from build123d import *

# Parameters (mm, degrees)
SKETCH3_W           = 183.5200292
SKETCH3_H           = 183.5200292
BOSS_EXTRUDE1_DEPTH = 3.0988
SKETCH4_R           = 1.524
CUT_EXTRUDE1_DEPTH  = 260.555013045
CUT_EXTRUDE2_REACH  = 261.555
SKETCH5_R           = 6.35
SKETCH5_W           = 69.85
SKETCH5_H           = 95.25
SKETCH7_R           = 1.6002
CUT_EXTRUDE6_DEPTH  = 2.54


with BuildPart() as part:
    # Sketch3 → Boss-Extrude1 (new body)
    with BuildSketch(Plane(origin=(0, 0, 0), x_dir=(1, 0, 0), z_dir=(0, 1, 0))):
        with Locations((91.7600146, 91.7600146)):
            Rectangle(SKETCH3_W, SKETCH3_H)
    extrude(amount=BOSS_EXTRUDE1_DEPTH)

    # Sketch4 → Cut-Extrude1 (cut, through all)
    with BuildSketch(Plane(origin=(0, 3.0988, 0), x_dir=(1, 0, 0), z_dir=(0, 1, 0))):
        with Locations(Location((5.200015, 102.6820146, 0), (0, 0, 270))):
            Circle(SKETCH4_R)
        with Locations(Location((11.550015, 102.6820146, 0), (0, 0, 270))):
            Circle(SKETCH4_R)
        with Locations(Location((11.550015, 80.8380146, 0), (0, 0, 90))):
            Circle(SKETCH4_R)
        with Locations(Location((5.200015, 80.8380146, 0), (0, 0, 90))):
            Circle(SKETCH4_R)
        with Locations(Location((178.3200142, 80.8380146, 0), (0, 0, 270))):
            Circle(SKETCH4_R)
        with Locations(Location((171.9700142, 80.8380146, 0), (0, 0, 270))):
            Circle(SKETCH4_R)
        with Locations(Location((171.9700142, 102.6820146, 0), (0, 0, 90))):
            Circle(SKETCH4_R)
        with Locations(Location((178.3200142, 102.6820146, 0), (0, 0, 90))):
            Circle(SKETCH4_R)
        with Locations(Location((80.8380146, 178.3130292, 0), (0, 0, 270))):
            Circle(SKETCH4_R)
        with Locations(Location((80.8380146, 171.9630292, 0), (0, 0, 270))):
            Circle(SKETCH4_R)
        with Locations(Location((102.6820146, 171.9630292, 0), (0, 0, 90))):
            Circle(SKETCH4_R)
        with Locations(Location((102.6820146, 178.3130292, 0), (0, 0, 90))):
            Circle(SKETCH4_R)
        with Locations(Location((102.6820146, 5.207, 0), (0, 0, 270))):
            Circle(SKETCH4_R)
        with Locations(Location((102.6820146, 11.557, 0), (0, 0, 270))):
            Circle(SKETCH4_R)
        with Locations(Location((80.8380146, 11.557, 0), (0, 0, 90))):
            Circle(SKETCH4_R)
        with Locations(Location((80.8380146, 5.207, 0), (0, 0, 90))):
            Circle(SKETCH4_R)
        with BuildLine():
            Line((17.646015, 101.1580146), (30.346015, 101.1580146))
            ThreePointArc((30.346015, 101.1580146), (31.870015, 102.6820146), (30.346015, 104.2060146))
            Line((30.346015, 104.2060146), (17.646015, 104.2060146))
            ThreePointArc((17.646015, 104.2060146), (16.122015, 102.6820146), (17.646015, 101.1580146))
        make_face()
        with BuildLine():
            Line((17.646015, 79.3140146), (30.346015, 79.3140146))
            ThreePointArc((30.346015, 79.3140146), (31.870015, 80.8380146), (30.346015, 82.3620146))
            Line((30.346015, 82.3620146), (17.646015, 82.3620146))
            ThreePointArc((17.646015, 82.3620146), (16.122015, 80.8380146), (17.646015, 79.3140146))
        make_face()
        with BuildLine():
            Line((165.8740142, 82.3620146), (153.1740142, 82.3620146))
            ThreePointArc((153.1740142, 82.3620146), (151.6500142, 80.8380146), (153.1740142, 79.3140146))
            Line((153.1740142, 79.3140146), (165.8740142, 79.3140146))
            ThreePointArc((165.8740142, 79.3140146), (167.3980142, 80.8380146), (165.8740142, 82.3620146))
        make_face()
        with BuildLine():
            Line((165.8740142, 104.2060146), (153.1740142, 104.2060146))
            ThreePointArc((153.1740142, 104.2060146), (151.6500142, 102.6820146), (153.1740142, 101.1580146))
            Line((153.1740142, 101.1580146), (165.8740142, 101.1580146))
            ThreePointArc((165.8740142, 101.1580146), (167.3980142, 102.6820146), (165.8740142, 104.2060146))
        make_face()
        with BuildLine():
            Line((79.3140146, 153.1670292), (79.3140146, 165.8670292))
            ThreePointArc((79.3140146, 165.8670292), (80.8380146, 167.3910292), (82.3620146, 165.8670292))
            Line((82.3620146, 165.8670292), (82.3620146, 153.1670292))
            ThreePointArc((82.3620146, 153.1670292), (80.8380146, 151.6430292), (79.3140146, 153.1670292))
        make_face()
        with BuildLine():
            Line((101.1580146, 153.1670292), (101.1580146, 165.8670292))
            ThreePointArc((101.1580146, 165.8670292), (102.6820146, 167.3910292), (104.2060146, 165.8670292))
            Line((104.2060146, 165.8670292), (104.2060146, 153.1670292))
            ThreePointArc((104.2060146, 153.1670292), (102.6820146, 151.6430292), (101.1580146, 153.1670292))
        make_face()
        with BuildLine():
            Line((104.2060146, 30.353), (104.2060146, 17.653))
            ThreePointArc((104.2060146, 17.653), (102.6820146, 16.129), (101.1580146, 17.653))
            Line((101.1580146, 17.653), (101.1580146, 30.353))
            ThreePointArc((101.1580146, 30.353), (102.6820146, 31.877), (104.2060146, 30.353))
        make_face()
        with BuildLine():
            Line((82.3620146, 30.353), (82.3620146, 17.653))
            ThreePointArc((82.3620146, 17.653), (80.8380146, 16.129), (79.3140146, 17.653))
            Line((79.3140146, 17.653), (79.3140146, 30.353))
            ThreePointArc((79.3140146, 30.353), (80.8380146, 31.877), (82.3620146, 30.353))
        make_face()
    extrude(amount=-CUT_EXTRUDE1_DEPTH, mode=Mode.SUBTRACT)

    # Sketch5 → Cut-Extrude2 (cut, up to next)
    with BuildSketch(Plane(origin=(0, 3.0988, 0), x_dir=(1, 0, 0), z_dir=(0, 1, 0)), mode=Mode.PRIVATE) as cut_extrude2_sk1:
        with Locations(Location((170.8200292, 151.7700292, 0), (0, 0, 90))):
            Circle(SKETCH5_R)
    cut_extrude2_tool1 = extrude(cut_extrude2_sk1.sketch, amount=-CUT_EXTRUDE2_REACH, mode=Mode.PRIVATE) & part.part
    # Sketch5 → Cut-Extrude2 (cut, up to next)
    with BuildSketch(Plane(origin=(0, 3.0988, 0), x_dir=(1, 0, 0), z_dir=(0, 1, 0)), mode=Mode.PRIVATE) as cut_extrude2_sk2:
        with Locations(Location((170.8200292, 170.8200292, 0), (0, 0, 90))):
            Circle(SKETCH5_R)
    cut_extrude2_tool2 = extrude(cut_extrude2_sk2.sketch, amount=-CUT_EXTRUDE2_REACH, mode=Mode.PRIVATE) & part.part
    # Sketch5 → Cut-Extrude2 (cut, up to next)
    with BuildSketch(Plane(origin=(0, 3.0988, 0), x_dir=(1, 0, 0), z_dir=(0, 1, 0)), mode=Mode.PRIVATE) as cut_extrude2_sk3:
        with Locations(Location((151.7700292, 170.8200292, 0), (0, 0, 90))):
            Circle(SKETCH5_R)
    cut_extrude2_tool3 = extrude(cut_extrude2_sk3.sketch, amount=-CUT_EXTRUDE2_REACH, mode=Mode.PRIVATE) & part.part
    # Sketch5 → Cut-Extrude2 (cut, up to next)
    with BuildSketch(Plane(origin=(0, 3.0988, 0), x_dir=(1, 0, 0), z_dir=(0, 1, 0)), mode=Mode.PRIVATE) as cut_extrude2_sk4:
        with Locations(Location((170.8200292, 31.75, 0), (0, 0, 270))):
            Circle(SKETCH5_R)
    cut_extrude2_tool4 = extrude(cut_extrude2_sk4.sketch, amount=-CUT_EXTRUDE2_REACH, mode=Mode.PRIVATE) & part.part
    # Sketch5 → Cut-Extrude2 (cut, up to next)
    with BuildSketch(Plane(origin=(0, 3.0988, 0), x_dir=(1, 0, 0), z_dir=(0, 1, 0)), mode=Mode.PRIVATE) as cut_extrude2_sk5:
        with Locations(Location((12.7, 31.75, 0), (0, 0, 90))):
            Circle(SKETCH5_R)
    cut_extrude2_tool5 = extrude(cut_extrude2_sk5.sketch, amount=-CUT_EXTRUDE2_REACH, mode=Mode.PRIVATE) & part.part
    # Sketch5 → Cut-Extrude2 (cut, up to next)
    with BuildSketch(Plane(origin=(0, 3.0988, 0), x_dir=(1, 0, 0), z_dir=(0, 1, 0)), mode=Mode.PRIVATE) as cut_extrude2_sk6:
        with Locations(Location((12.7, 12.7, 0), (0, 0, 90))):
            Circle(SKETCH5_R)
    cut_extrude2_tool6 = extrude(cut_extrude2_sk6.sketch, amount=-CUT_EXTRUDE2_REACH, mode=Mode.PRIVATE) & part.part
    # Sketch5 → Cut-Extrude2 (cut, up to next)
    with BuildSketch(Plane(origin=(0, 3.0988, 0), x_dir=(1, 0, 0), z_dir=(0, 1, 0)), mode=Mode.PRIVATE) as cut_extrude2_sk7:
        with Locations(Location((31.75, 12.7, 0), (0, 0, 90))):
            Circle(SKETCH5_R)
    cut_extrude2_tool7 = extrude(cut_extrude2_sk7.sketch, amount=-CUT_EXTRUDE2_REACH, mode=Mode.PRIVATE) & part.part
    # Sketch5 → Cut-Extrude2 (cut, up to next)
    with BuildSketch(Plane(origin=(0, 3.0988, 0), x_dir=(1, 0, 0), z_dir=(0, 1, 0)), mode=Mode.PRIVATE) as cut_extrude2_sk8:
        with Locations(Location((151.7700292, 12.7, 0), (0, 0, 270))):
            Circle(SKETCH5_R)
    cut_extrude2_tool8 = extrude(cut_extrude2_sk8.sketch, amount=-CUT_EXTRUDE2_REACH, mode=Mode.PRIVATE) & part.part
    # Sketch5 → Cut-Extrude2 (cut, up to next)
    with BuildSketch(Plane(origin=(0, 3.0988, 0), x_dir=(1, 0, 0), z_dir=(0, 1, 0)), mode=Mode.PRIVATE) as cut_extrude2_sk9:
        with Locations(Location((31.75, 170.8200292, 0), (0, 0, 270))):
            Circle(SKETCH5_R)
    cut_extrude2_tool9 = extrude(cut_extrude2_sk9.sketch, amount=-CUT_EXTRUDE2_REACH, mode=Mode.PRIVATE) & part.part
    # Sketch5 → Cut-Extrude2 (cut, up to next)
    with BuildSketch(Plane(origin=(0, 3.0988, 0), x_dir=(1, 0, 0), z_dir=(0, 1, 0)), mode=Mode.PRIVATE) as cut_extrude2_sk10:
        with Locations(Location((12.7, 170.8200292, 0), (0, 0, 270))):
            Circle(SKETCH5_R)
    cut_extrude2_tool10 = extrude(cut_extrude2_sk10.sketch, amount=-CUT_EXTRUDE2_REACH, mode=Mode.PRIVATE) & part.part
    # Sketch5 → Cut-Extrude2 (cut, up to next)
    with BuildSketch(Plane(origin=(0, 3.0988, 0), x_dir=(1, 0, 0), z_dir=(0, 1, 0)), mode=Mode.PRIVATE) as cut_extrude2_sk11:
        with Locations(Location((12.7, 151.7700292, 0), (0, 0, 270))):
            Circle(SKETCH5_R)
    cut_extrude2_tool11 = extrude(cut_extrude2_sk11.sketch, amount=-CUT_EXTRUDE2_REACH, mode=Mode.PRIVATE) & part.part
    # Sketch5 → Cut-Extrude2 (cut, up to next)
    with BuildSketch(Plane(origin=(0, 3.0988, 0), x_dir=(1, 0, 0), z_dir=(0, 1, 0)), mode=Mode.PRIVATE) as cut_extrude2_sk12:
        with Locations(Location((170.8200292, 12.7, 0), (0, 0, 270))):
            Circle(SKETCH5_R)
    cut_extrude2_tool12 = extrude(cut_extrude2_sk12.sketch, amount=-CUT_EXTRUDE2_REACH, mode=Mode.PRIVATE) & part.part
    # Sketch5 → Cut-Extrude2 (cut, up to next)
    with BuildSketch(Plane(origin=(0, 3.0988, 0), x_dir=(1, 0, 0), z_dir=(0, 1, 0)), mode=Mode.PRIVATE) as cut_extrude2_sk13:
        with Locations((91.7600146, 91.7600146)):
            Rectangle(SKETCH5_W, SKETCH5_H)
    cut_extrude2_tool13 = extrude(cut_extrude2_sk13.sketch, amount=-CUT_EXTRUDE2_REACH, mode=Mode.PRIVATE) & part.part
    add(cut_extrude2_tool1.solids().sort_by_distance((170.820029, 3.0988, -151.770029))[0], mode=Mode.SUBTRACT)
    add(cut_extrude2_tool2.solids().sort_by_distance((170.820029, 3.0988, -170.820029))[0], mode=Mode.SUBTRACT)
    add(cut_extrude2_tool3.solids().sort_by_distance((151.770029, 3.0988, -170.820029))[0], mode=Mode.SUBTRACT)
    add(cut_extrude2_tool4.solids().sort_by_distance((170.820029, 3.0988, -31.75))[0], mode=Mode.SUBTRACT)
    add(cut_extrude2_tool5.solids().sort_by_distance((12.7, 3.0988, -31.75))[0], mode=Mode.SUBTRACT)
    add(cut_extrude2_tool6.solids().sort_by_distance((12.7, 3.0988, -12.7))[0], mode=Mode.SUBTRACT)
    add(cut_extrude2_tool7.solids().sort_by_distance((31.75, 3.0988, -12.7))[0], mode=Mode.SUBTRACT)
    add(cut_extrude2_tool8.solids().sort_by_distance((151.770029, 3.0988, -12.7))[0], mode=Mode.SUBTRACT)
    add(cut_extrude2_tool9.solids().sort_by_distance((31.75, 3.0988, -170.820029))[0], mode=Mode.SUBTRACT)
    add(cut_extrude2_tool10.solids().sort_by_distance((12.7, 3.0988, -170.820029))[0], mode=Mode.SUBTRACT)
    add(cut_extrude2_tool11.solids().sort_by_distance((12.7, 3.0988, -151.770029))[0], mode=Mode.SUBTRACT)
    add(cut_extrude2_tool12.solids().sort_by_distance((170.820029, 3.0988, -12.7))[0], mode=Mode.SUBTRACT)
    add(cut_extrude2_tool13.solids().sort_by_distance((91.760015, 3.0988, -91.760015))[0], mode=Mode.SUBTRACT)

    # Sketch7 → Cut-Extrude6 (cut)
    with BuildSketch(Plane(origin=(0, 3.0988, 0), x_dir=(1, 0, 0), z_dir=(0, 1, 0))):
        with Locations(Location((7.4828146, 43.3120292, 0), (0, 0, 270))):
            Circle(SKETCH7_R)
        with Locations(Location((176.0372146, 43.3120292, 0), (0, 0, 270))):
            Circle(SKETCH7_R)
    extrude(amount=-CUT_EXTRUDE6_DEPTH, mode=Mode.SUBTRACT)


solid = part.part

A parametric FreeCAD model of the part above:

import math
import FreeCAD as App
import Part
import Sketcher
from FreeCAD import Vector
Q = App.Units.Quantity

doc = App.newDocument("Part")
params = doc.addObject("Spreadsheet::Sheet", "Params")
for row, (alias, value) in enumerate([
    ("pad1_length", "0.122 in"),
    ("sketch2_diameter", "0.12 in"),
    ("sketch2_width", "0.5 in"),
    ("sketch3_diameter", "0.5 in"),
    ("sketch4_diameter", "0.5 in"),
    ("sketch5_diameter", "0.5 in"),
    ("sketch6_diameter", "0.5 in"),
    ("sketch7_diameter", "0.5 in"),
    ("sketch8_diameter", "0.5 in"),
    ("sketch9_diameter", "0.5 in"),
    ("sketch10_diameter", "0.5 in"),
    ("sketch11_diameter", "0.5 in"),
    ("sketch12_diameter", "0.5 in"),
    ("sketch13_diameter", "0.5 in"),
    ("sketch14_diameter", "0.5 in"),
    ("sketch15_width", "2.75 in"),
    ("sketch15_height", "3.75 in"),
    ("sketch16_diameter", "0.126 in"),
    ("pocket15_length", "0.1 in"),
], start=1):
    params.set(f"A{row}", alias)
    params.set(f"B{row}", "=" + value)
    params.setAlias(f"B{row}", alias)

body = doc.addObject("PartDesign::Body", "Body")

sketch1 = doc.addObject("Sketcher::SketchObject", "Sketch")
body.addObject(sketch1)
sketch1.AttachmentSupport = (doc.XZ_Plane, [""])
sketch1.MapMode = "FlatFace"
sketch1.addGeometry([
    Part.LineSegment(Vector(0, -184, 0), Vector(0, 0, 0)),
    Part.LineSegment(Vector(0, 0, 0), Vector(184, 0, 0)),
    Part.LineSegment(Vector(184, 0, 0), Vector(184, -184, 0)),
    Part.LineSegment(Vector(184, -184, 0), Vector(0, -184, 0)),
], False)
sketch1.addConstraint([
    Sketcher.Constraint("Coincident", 0, 2, 1, 1),
    Sketcher.Constraint("Coincident", 1, 2, 2, 1),
    Sketcher.Constraint("Coincident", 2, 2, 3, 1),
    Sketcher.Constraint("Coincident", 3, 2, 0, 1),
    Sketcher.Constraint("Vertical", 0),
    Sketcher.Constraint("Horizontal", 1),
    Sketcher.Constraint("Vertical", 2),
    Sketcher.Constraint("Horizontal", 3),
    Sketcher.Constraint("Coincident", 0, 2, -1, 1),
    Sketcher.Constraint("Equal", 3, 0),
    Sketcher.Constraint("DistanceX", 1, 1, 1, 2, Q("183.520029 mm")),
])
pad1 = doc.addObject("PartDesign::Pad", "Pad")
body.addObject(pad1)
pad1.Profile = sketch1
pad1.setExpression("Length", "Params.pad1_length")
pad1.Reversed = True

sketch2 = doc.addObject("Sketcher::SketchObject", "Sketch001")
body.addObject(sketch2)
sketch2.AttachmentSupport = (doc.XZ_Plane, [""])
sketch2.MapMode = "FlatFace"
sketch2.AttachmentOffset = App.Placement(Vector(0, 0, -0.122 * 25.4), App.Rotation())
sketch2.addGeometry([
    Part.Circle(Vector(5.2, -102.7, 0), Vector(0, 0, 1), 1.5),
    Part.Circle(Vector(11.6, -102.7, 0), Vector(0, 0, 1), 1.5),
    Part.Circle(Vector(11.6, -80.8, 0), Vector(0, 0, 1), 1.5),
    Part.Circle(Vector(5.2, -80.8, 0), Vector(0, 0, 1), 1.5),
    Part.Circle(Vector(178.3, -80.8, 0), Vector(0, 0, 1), 1.5),
    Part.Circle(Vector(172, -80.8, 0), Vector(0, 0, 1), 1.5),
    Part.Circle(Vector(172, -102.7, 0), Vector(0, 0, 1), 1.5),
    Part.Circle(Vector(178.3, -102.7, 0), Vector(0, 0, 1), 1.5),
    Part.Circle(Vector(80.8, -178.3, 0), Vector(0, 0, 1), 1.5),
    Part.Circle(Vector(80.8, -172, 0), Vector(0, 0, 1), 1.5),
    Part.Circle(Vector(102.7, -172, 0), Vector(0, 0, 1), 1.5),
    Part.Circle(Vector(102.7, -178.3, 0), Vector(0, 0, 1), 1.5),
    Part.Circle(Vector(102.7, -5.2, 0), Vector(0, 0, 1), 1.5),
    Part.Circle(Vector(102.7, -11.6, 0), Vector(0, 0, 1), 1.5),
    Part.Circle(Vector(80.8, -11.6, 0), Vector(0, 0, 1), 1.5),
    Part.Circle(Vector(80.8, -5.2, 0), Vector(0, 0, 1), 1.5),
    Part.LineSegment(Vector(17.6, -101.2, 0), Vector(30.3, -101.2, 0)),
    Part.ArcOfCircle(Part.Circle(Vector(30.3, -102.7, 0), Vector(0, 0, 1), 1.5), math.radians(-90), math.radians(90)),
    Part.LineSegment(Vector(30.3, -104.2, 0), Vector(17.6, -104.2, 0)),
    Part.ArcOfCircle(Part.Circle(Vector(17.6, -102.7, 0), Vector(0, 0, 1), 1.5), math.radians(90), math.radians(270)),
    Part.LineSegment(Vector(17.6, -79.3, 0), Vector(30.3, -79.3, 0)),
    Part.ArcOfCircle(Part.Circle(Vector(30.3, -80.8, 0), Vector(0, 0, 1), 1.5), math.radians(-90), math.radians(90)),
    Part.LineSegment(Vector(30.3, -82.4, 0), Vector(17.6, -82.4, 0)),
    Part.ArcOfCircle(Part.Circle(Vector(17.6, -80.8, 0), Vector(0, 0, 1), 1.5), math.radians(90), math.radians(270)),
    Part.LineSegment(Vector(165.9, -82.4, 0), Vector(153.2, -82.4, 0)),
    Part.ArcOfCircle(Part.Circle(Vector(153.2, -80.8, 0), Vector(0, 0, 1), 1.5), math.radians(90), math.radians(270)),
    Part.LineSegment(Vector(153.2, -79.3, 0), Vector(165.9, -79.3, 0)),
    Part.ArcOfCircle(Part.Circle(Vector(165.9, -80.8, 0), Vector(0, 0, 1), 1.5), math.radians(-90), math.radians(90)),
    Part.LineSegment(Vector(165.9, -104.2, 0), Vector(153.2, -104.2, 0)),
    Part.ArcOfCircle(Part.Circle(Vector(153.2, -102.7, 0), Vector(0, 0, 1), 1.5), math.radians(90), math.radians(270)),
    Part.LineSegment(Vector(153.2, -101.2, 0), Vector(165.9, -101.2, 0)),
    Part.ArcOfCircle(Part.Circle(Vector(165.9, -102.7, 0), Vector(0, 0, 1), 1.5), math.radians(-90), math.radians(90)),
    Part.LineSegment(Vector(79.3, -165.9, 0), Vector(79.3, -153.2, 0)),
    Part.ArcOfCircle(Part.Circle(Vector(80.8, -153.2, 0), Vector(0, 0, 1), 1.5), math.radians(0), math.radians(180)),
    Part.LineSegment(Vector(82.4, -153.2, 0), Vector(82.4, -165.9, 0)),
    Part.ArcOfCircle(Part.Circle(Vector(80.8, -165.9, 0), Vector(0, 0, 1), 1.5), math.radians(180), math.radians(360)),
    Part.LineSegment(Vector(101.2, -165.9, 0), Vector(101.2, -153.2, 0)),
    Part.ArcOfCircle(Part.Circle(Vector(102.7, -153.2, 0), Vector(0, 0, 1), 1.5), math.radians(0), math.radians(180)),
    Part.LineSegment(Vector(104.2, -153.2, 0), Vector(104.2, -165.9, 0)),
    Part.ArcOfCircle(Part.Circle(Vector(102.7, -165.9, 0), Vector(0, 0, 1), 1.5), math.radians(180), math.radians(360)),
    Part.LineSegment(Vector(104.2, -17.7, 0), Vector(104.2, -30.4, 0)),
    Part.ArcOfCircle(Part.Circle(Vector(102.7, -30.4, 0), Vector(0, 0, 1), 1.5), math.radians(180), math.radians(360)),
    Part.LineSegment(Vector(101.2, -30.4, 0), Vector(101.2, -17.7, 0)),
    Part.ArcOfCircle(Part.Circle(Vector(102.7, -17.7, 0), Vector(0, 0, 1), 1.5), math.radians(0), math.radians(180)),
    Part.LineSegment(Vector(82.4, -17.7, 0), Vector(82.4, -30.4, 0)),
    Part.ArcOfCircle(Part.Circle(Vector(80.8, -30.4, 0), Vector(0, 0, 1), 1.5), math.radians(180), math.radians(360)),
    Part.LineSegment(Vector(79.3, -30.4, 0), Vector(79.3, -17.7, 0)),
    Part.ArcOfCircle(Part.Circle(Vector(80.8, -17.7, 0), Vector(0, 0, 1), 1.5), math.radians(0), math.radians(180)),
], False)
sketch2.addConstraint([
    Sketcher.Constraint("Tangent", 16, 2, 17, 2),
    Sketcher.Constraint("Tangent", 17, 1, 18, 1),
    Sketcher.Constraint("Tangent", 18, 2, 19, 2),
    Sketcher.Constraint("Tangent", 19, 1, 16, 1),
    Sketcher.Constraint("Tangent", 20, 2, 21, 2),
    Sketcher.Constraint("Tangent", 21, 1, 22, 1),
    Sketcher.Constraint("Tangent", 22, 2, 23, 2),
    Sketcher.Constraint("Tangent", 23, 1, 20, 1),
    Sketcher.Constraint("Tangent", 24, 2, 25, 2),
    Sketcher.Constraint("Tangent", 25, 1, 26, 1),
    Sketcher.Constraint("Tangent", 26, 2, 27, 2),
    Sketcher.Constraint("Tangent", 27, 1, 24, 1),
    Sketcher.Constraint("Tangent", 28, 2, 29, 2),
    Sketcher.Constraint("Tangent", 29, 1, 30, 1),
    Sketcher.Constraint("Tangent", 30, 2, 31, 2),
    Sketcher.Constraint("Tangent", 31, 1, 28, 1),
    Sketcher.Constraint("Tangent", 32, 2, 33, 2),
    Sketcher.Constraint("Tangent", 33, 1, 34, 1),
    Sketcher.Constraint("Tangent", 34, 2, 35, 2),
    Sketcher.Constraint("Tangent", 35, 1, 32, 1),
    Sketcher.Constraint("Tangent", 36, 2, 37, 2),
    Sketcher.Constraint("Tangent", 37, 1, 38, 1),
    Sketcher.Constraint("Tangent", 38, 2, 39, 2),
    Sketcher.Constraint("Tangent", 39, 1, 36, 1),
    Sketcher.Constraint("Tangent", 40, 2, 41, 2),
    Sketcher.Constraint("Tangent", 41, 1, 42, 1),
    Sketcher.Constraint("Tangent", 42, 2, 43, 2),
    Sketcher.Constraint("Tangent", 43, 1, 40, 1),
    Sketcher.Constraint("Tangent", 44, 2, 45, 2),
    Sketcher.Constraint("Tangent", 45, 1, 46, 1),
    Sketcher.Constraint("Tangent", 46, 2, 47, 2),
    Sketcher.Constraint("Tangent", 47, 1, 44, 1),
    Sketcher.Constraint("Horizontal", 16),
    Sketcher.Constraint("Horizontal", 18),
    Sketcher.Constraint("Horizontal", 20),
    Sketcher.Constraint("Horizontal", 22),
    Sketcher.Constraint("Horizontal", 24),
    Sketcher.Constraint("Horizontal", 26),
    Sketcher.Constraint("Horizontal", 28),
    Sketcher.Constraint("Horizontal", 30),
    Sketcher.Constraint("Vertical", 32),
    Sketcher.Constraint("Vertical", 34),
    Sketcher.Constraint("Vertical", 36),
    Sketcher.Constraint("Vertical", 38),
    Sketcher.Constraint("Vertical", 40),
    Sketcher.Constraint("Vertical", 42),
    Sketcher.Constraint("Vertical", 44),
    Sketcher.Constraint("Vertical", 46),
    Sketcher.Constraint("Equal", 0, 1),
    Sketcher.Constraint("Equal", 1, 2),
    Sketcher.Constraint("Equal", 2, 3),
    Sketcher.Constraint("Equal", 3, 4),
    Sketcher.Constraint("Equal", 4, 5),
    Sketcher.Constraint("Equal", 5, 6),
    Sketcher.Constraint("Equal", 6, 7),
    Sketcher.Constraint("Equal", 7, 8),
    Sketcher.Constraint("Equal", 8, 9),
    Sketcher.Constraint("Equal", 9, 10),
    Sketcher.Constraint("Equal", 10, 11),
    Sketcher.Constraint("Equal", 11, 12),
    Sketcher.Constraint("Equal", 12, 13),
    Sketcher.Constraint("Equal", 13, 14),
    Sketcher.Constraint("Equal", 14, 15),
    Sketcher.Constraint("Equal", 15, 17),
    Sketcher.Constraint("Equal", 19, 21),
    Sketcher.Constraint("Equal", 23, 25),
    Sketcher.Constraint("Equal", 27, 29),
    Sketcher.Constraint("Equal", 31, 33),
    Sketcher.Constraint("Equal", 35, 37),
    Sketcher.Constraint("Equal", 39, 41),
    Sketcher.Constraint("Equal", 43, 45),
    Sketcher.Constraint("Horizontal", 0, 3, 1, 3),
    Sketcher.Constraint("Horizontal", 2, 3, 3, 3),
    Sketcher.Constraint("Horizontal", 3, 3, 4, 3),
    Sketcher.Constraint("Horizontal", 4, 3, 5, 3),
    Sketcher.Constraint("Horizontal", 1, 3, 6, 3),
    Sketcher.Constraint("Horizontal", 6, 3, 7, 3),
    Sketcher.Constraint("Horizontal", 9, 3, 10, 3),
    Sketcher.Constraint("Horizontal", 8, 3, 11, 3),
    Sketcher.Constraint("Horizontal", 13, 3, 14, 3),
    Sketcher.Constraint("Horizontal", 12, 3, 15, 3),
    Sketcher.Constraint("Horizontal", 7, 3, 17, 3),
    Sketcher.Constraint("Horizontal", 5, 3, 21, 3),
    Sketcher.Constraint("Horizontal", 23, 3, 25, 3),
    Sketcher.Constraint("Horizontal", 19, 3, 29, 3),
    Sketcher.Constraint("Horizontal", 33, 3, 37, 3),
    Sketcher.Constraint("Horizontal", 35, 3, 39, 3),
    Sketcher.Constraint("Horizontal", 41, 3, 45, 3),
    Sketcher.Constraint("Horizontal", 43, 3, 47, 3),
    Sketcher.Constraint("Vertical", 1, 3, 2, 3),
    Sketcher.Constraint("Vertical", 0, 3, 3, 3),
    Sketcher.Constraint("Vertical", 5, 3, 6, 3),
    Sketcher.Constraint("Vertical", 4, 3, 7, 3),
    Sketcher.Constraint("Vertical", 8, 3, 9, 3),
    Sketcher.Constraint("Vertical", 10, 3, 11, 3),
    Sketcher.Constraint("Vertical", 11, 3, 12, 3),
    Sketcher.Constraint("Vertical", 12, 3, 13, 3),
    Sketcher.Constraint("Vertical", 9, 3, 14, 3),
    Sketcher.Constraint("Vertical", 14, 3, 15, 3),
    Sketcher.Constraint("Vertical", 17, 3, 21, 3),
    Sketcher.Constraint("Vertical", 19, 3, 23, 3),
    Sketcher.Constraint("Vertical", 25, 3, 29, 3),
    Sketcher.Constraint("Vertical", 27, 3, 31, 3),
    Sketcher.Constraint("Vertical", 15, 3, 33, 3),
    Sketcher.Constraint("Vertical", 13, 3, 37, 3),
    Sketcher.Constraint("Vertical", 39, 3, 41, 3),
    Sketcher.Constraint("Vertical", 35, 3, 45, 3),
    Sketcher.Constraint("Equal", 22, 24),
    Sketcher.Constraint("Equal", 30, 32),
    Sketcher.Constraint("Equal", 38, 40),
    Sketcher.Constraint("Diameter", 0, Q("0.12 in")),
    Sketcher.Constraint("DistanceX", 16, 1, 16, 2, Q("0.5 in")),
    Sketcher.Constraint("DistanceY", 12, 3, -1, 1, Q("0.205 in")),
    Sketcher.Constraint("DistanceY", 13, 3, -1, 1, Q("0.455 in")),
    Sketcher.Constraint("DistanceY", 41, 3, -1, 1, Q("1.195 in")),
    Sketcher.Constraint("DistanceY", 8, 3, -1, 1, Q("178.313029 mm")),
    Sketcher.Constraint("DistanceY", 9, 3, -1, 1, Q("171.963029 mm")),
    Sketcher.Constraint("DistanceY", 33, 3, -1, 1, Q("153.167029 mm")),
    Sketcher.Constraint("DistanceX", -1, 1, 0, 3, Q("5.200015 mm")),
    Sketcher.Constraint("DistanceY", 0, 3, -1, 1, Q("102.682015 mm")),
    Sketcher.Constraint("DistanceX", -1, 1, 1, 3, Q("11.550015 mm")),
    Sketcher.Constraint("DistanceY", 2, 3, -1, 1, Q("80.838015 mm")),
    Sketcher.Constraint("DistanceX", -1, 1, 4, 3, Q("178.320014 mm")),
    Sketcher.Constraint("DistanceX", -1, 1, 5, 3, Q("171.970014 mm")),
    Sketcher.Constraint("DistanceX", -1, 1, 8, 3, Q("80.838015 mm")),
    Sketcher.Constraint("DistanceX", -1, 1, 10, 3, Q("102.682015 mm")),
    Sketcher.Constraint("DistanceX", -1, 1, 17, 3, Q("30.346015 mm")),
    Sketcher.Constraint("DistanceX", -1, 1, 25, 3, Q("153.174014 mm")),
])
sketch2.setExpression("Constraints[110]", "Params.sketch2_diameter")
sketch2.setExpression("Constraints[111]", "Params.sketch2_width")
pocket1 = doc.addObject("PartDesign::Pocket", "Pocket")
body.addObject(pocket1)
pocket1.Profile = sketch2
pocket1.Type = "ThroughAll"
pocket1.Reversed = True

sketch3 = doc.addObject("Sketcher::SketchObject", "Sketch002")
body.addObject(sketch3)
sketch3.AttachmentSupport = (doc.XZ_Plane, [""])
sketch3.MapMode = "FlatFace"
sketch3.AttachmentOffset = App.Placement(Vector(0, 0, -0.122 * 25.4), App.Rotation())
sketch3.addGeometry(Part.Circle(Vector(171, -152, 0), Vector(0, 0, 1), 6), False)
sketch3.addConstraint([
    Sketcher.Constraint("Diameter", 0, Q("0.5 in")),
    Sketcher.Constraint("DistanceX", -1, 1, 0, 3, Q("170.820029 mm")),
    Sketcher.Constraint("DistanceY", 0, 3, -1, 1, Q("151.770029 mm")),
])
sketch3.setExpression("Constraints[0]", "Params.sketch3_diameter")
pocket2 = doc.addObject("PartDesign::Pocket", "Pocket001")
body.addObject(pocket2)
pocket2.Profile = sketch3
pocket2.Type = "UpToFirst"
pocket2.Reversed = True

sketch4 = doc.addObject("Sketcher::SketchObject", "Sketch003")
body.addObject(sketch4)
sketch4.AttachmentSupport = (doc.XZ_Plane, [""])
sketch4.MapMode = "FlatFace"
sketch4.AttachmentOffset = App.Placement(Vector(0, 0, -0.122 * 25.4), App.Rotation())
sketch4.addGeometry(Part.Circle(Vector(171, -171, 0), Vector(0, 0, 1), 6), False)
sketch4.addConstraint([
    Sketcher.Constraint("Diameter", 0, Q("0.5 in")),
    Sketcher.Constraint("DistanceX", -1, 1, 0, 3, Q("170.820029 mm")),
    Sketcher.Constraint("DistanceY", 0, 3, -1, 1, Q("170.820029 mm")),
])
sketch4.setExpression("Constraints[0]", "Params.sketch4_diameter")
pocket3 = doc.addObject("PartDesign::Pocket", "Pocket002")
body.addObject(pocket3)
pocket3.Profile = sketch4
pocket3.Type = "UpToFirst"
pocket3.Reversed = True

sketch5 = doc.addObject("Sketcher::SketchObject", "Sketch004")
body.addObject(sketch5)
sketch5.AttachmentSupport = (doc.XZ_Plane, [""])
sketch5.MapMode = "FlatFace"
sketch5.AttachmentOffset = App.Placement(Vector(0, 0, -0.122 * 25.4), App.Rotation())
sketch5.addGeometry(Part.Circle(Vector(152, -171, 0), Vector(0, 0, 1), 6), False)
sketch5.addConstraint([
    Sketcher.Constraint("Diameter", 0, Q("0.5 in")),
    Sketcher.Constraint("DistanceX", -1, 1, 0, 3, Q("151.770029 mm")),
    Sketcher.Constraint("DistanceY", 0, 3, -1, 1, Q("170.820029 mm")),
])
sketch5.setExpression("Constraints[0]", "Params.sketch5_diameter")
pocket4 = doc.addObject("PartDesign::Pocket", "Pocket003")
body.addObject(pocket4)
pocket4.Profile = sketch5
pocket4.Type = "UpToFirst"
pocket4.Reversed = True

sketch6 = doc.addObject("Sketcher::SketchObject", "Sketch005")
body.addObject(sketch6)
sketch6.AttachmentSupport = (doc.XZ_Plane, [""])
sketch6.MapMode = "FlatFace"
sketch6.AttachmentOffset = App.Placement(Vector(0, 0, -0.122 * 25.4), App.Rotation())
sketch6.addGeometry(Part.Circle(Vector(171, -32, 0), Vector(0, 0, 1), 6), False)
sketch6.addConstraint([
    Sketcher.Constraint("Diameter", 0, Q("0.5 in")),
    Sketcher.Constraint("DistanceY", 0, 3, -1, 1, Q("1.25 in")),
    Sketcher.Constraint("DistanceX", -1, 1, 0, 3, Q("170.820029 mm")),
])
sketch6.setExpression("Constraints[0]", "Params.sketch6_diameter")
pocket5 = doc.addObject("PartDesign::Pocket", "Pocket004")
body.addObject(pocket5)
pocket5.Profile = sketch6
pocket5.Type = "UpToFirst"
pocket5.Reversed = True

sketch7 = doc.addObject("Sketcher::SketchObject", "Sketch006")
body.addObject(sketch7)
sketch7.AttachmentSupport = (doc.XZ_Plane, [""])
sketch7.MapMode = "FlatFace"
sketch7.AttachmentOffset = App.Placement(Vector(0, 0, -0.122 * 25.4), App.Rotation())
sketch7.addGeometry(Part.Circle(Vector(13, -32, 0), Vector(0, 0, 1), 6), False)
sketch7.addConstraint([
    Sketcher.Constraint("Diameter", 0, Q("0.5 in")),
    Sketcher.Constraint("DistanceX", -1, 1, 0, 3, Q("0.5 in")),
    Sketcher.Constraint("DistanceY", 0, 3, -1, 1, Q("1.25 in")),
])
sketch7.setExpression("Constraints[0]", "Params.sketch7_diameter")
pocket6 = doc.addObject("PartDesign::Pocket", "Pocket005")
body.addObject(pocket6)
pocket6.Profile = sketch7
pocket6.Type = "UpToFirst"
pocket6.Reversed = True

sketch8 = doc.addObject("Sketcher::SketchObject", "Sketch007")
body.addObject(sketch8)
sketch8.AttachmentSupport = (doc.XZ_Plane, [""])
sketch8.MapMode = "FlatFace"
sketch8.AttachmentOffset = App.Placement(Vector(0, 0, -0.122 * 25.4), App.Rotation())
sketch8.addGeometry(Part.Circle(Vector(13, -13, 0), Vector(0, 0, 1), 6), False)
sketch8.addConstraint([
    Sketcher.Constraint("Diameter", 0, Q("0.5 in")),
    Sketcher.Constraint("DistanceX", -1, 1, 0, 3, Q("0.5 in")),
    Sketcher.Constraint("DistanceY", 0, 3, -1, 1, Q("0.5 in")),
])
sketch8.setExpression("Constraints[0]", "Params.sketch8_diameter")
pocket7 = doc.addObject("PartDesign::Pocket", "Pocket006")
body.addObject(pocket7)
pocket7.Profile = sketch8
pocket7.Type = "UpToFirst"
pocket7.Reversed = True

sketch9 = doc.addObject("Sketcher::SketchObject", "Sketch008")
body.addObject(sketch9)
sketch9.AttachmentSupport = (doc.XZ_Plane, [""])
sketch9.MapMode = "FlatFace"
sketch9.AttachmentOffset = App.Placement(Vector(0, 0, -0.122 * 25.4), App.Rotation())
sketch9.addGeometry(Part.Circle(Vector(32, -13, 0), Vector(0, 0, 1), 6), False)
sketch9.addConstraint([
    Sketcher.Constraint("Diameter", 0, Q("0.5 in")),
    Sketcher.Constraint("DistanceY", 0, 3, -1, 1, Q("0.5 in")),
    Sketcher.Constraint("DistanceX", -1, 1, 0, 3, Q("1.25 in")),
])
sketch9.setExpression("Constraints[0]", "Params.sketch9_diameter")
pocket8 = doc.addObject("PartDesign::Pocket", "Pocket007")
body.addObject(pocket8)
pocket8.Profile = sketch9
pocket8.Type = "UpToFirst"
pocket8.Reversed = True

sketch10 = doc.addObject("Sketcher::SketchObject", "Sketch009")
body.addObject(sketch10)
sketch10.AttachmentSupport = (doc.XZ_Plane, [""])
sketch10.MapMode = "FlatFace"
sketch10.AttachmentOffset = App.Placement(Vector(0, 0, -0.122 * 25.4), App.Rotation())
sketch10.addGeometry(Part.Circle(Vector(152, -13, 0), Vector(0, 0, 1), 6), False)
sketch10.addConstraint([
    Sketcher.Constraint("Diameter", 0, Q("0.5 in")),
    Sketcher.Constraint("DistanceY", 0, 3, -1, 1, Q("0.5 in")),
    Sketcher.Constraint("DistanceX", -1, 1, 0, 3, Q("151.770029 mm")),
])
sketch10.setExpression("Constraints[0]", "Params.sketch10_diameter")
pocket9 = doc.addObject("PartDesign::Pocket", "Pocket008")
body.addObject(pocket9)
pocket9.Profile = sketch10
pocket9.Type = "UpToFirst"
pocket9.Reversed = True

sketch11 = doc.addObject("Sketcher::SketchObject", "Sketch010")
body.addObject(sketch11)
sketch11.AttachmentSupport = (doc.XZ_Plane, [""])
sketch11.MapMode = "FlatFace"
sketch11.AttachmentOffset = App.Placement(Vector(0, 0, -0.122 * 25.4), App.Rotation())
sketch11.addGeometry(Part.Circle(Vector(32, -171, 0), Vector(0, 0, 1), 6), False)
sketch11.addConstraint([
    Sketcher.Constraint("Diameter", 0, Q("0.5 in")),
    Sketcher.Constraint("DistanceX", -1, 1, 0, 3, Q("1.25 in")),
    Sketcher.Constraint("DistanceY", 0, 3, -1, 1, Q("170.820029 mm")),
])
sketch11.setExpression("Constraints[0]", "Params.sketch11_diameter")
pocket10 = doc.addObject("PartDesign::Pocket", "Pocket009")
body.addObject(pocket10)
pocket10.Profile = sketch11
pocket10.Type = "UpToFirst"
pocket10.Reversed = True

sketch12 = doc.addObject("Sketcher::SketchObject", "Sketch011")
body.addObject(sketch12)
sketch12.AttachmentSupport = (doc.XZ_Plane, [""])
sketch12.MapMode = "FlatFace"
sketch12.AttachmentOffset = App.Placement(Vector(0, 0, -0.122 * 25.4), App.Rotation())
sketch12.addGeometry(Part.Circle(Vector(13, -171, 0), Vector(0, 0, 1), 6), False)
sketch12.addConstraint([
    Sketcher.Constraint("Diameter", 0, Q("0.5 in")),
    Sketcher.Constraint("DistanceX", -1, 1, 0, 3, Q("0.5 in")),
    Sketcher.Constraint("DistanceY", 0, 3, -1, 1, Q("170.820029 mm")),
])
sketch12.setExpression("Constraints[0]", "Params.sketch12_diameter")
pocket11 = doc.addObject("PartDesign::Pocket", "Pocket010")
body.addObject(pocket11)
pocket11.Profile = sketch12
pocket11.Type = "UpToFirst"
pocket11.Reversed = True

sketch13 = doc.addObject("Sketcher::SketchObject", "Sketch012")
body.addObject(sketch13)
sketch13.AttachmentSupport = (doc.XZ_Plane, [""])
sketch13.MapMode = "FlatFace"
sketch13.AttachmentOffset = App.Placement(Vector(0, 0, -0.122 * 25.4), App.Rotation())
sketch13.addGeometry(Part.Circle(Vector(13, -152, 0), Vector(0, 0, 1), 6), False)
sketch13.addConstraint([
    Sketcher.Constraint("Diameter", 0, Q("0.5 in")),
    Sketcher.Constraint("DistanceX", -1, 1, 0, 3, Q("0.5 in")),
    Sketcher.Constraint("DistanceY", 0, 3, -1, 1, Q("151.770029 mm")),
])
sketch13.setExpression("Constraints[0]", "Params.sketch13_diameter")
pocket12 = doc.addObject("PartDesign::Pocket", "Pocket011")
body.addObject(pocket12)
pocket12.Profile = sketch13
pocket12.Type = "UpToFirst"
pocket12.Reversed = True

sketch14 = doc.addObject("Sketcher::SketchObject", "Sketch013")
body.addObject(sketch14)
sketch14.AttachmentSupport = (doc.XZ_Plane, [""])
sketch14.MapMode = "FlatFace"
sketch14.AttachmentOffset = App.Placement(Vector(0, 0, -0.122 * 25.4), App.Rotation())
sketch14.addGeometry(Part.Circle(Vector(171, -13, 0), Vector(0, 0, 1), 6), False)
sketch14.addConstraint([
    Sketcher.Constraint("Diameter", 0, Q("0.5 in")),
    Sketcher.Constraint("DistanceY", 0, 3, -1, 1, Q("0.5 in")),
    Sketcher.Constraint("DistanceX", -1, 1, 0, 3, Q("170.820029 mm")),
])
sketch14.setExpression("Constraints[0]", "Params.sketch14_diameter")
pocket13 = doc.addObject("PartDesign::Pocket", "Pocket012")
body.addObject(pocket13)
pocket13.Profile = sketch14
pocket13.Type = "UpToFirst"
pocket13.Reversed = True

sketch15 = doc.addObject("Sketcher::SketchObject", "Sketch014")
body.addObject(sketch15)
sketch15.AttachmentSupport = (doc.XZ_Plane, [""])
sketch15.MapMode = "FlatFace"
sketch15.AttachmentOffset = App.Placement(Vector(0, 0, -0.122 * 25.4), App.Rotation())
sketch15.addGeometry([
    Part.LineSegment(Vector(57, -139, 0), Vector(57, -44, 0)),
    Part.LineSegment(Vector(57, -44, 0), Vector(127, -44, 0)),
    Part.LineSegment(Vector(127, -44, 0), Vector(127, -139, 0)),
    Part.LineSegment(Vector(127, -139, 0), Vector(57, -139, 0)),
], False)
sketch15.addConstraint([
    Sketcher.Constraint("Coincident", 0, 2, 1, 1),
    Sketcher.Constraint("Coincident", 1, 2, 2, 1),
    Sketcher.Constraint("Coincident", 2, 2, 3, 1),
    Sketcher.Constraint("Coincident", 3, 2, 0, 1),
    Sketcher.Constraint("Vertical", 0),
    Sketcher.Constraint("Horizontal", 1),
    Sketcher.Constraint("Vertical", 2),
    Sketcher.Constraint("Horizontal", 3),
    Sketcher.Constraint("DistanceX", 1, 1, 1, 2, Q("2.75 in")),
    Sketcher.Constraint("DistanceY", 0, 1, 0, 2, Q("3.75 in")),
    Sketcher.Constraint("DistanceX", -1, 1, 0, 2, Q("56.835015 mm")),
    Sketcher.Constraint("DistanceY", 0, 2, -1, 1, Q("44.135015 mm")),
])
sketch15.setExpression("Constraints[8]", "Params.sketch15_width")
sketch15.setExpression("Constraints[9]", "Params.sketch15_height")
pocket14 = doc.addObject("PartDesign::Pocket", "Pocket013")
body.addObject(pocket14)
pocket14.Profile = sketch15
pocket14.Type = "UpToFirst"
pocket14.Reversed = True

sketch16 = doc.addObject("Sketcher::SketchObject", "Sketch015")
body.addObject(sketch16)
sketch16.AttachmentSupport = (doc.XZ_Plane, [""])
sketch16.MapMode = "FlatFace"
sketch16.AttachmentOffset = App.Placement(Vector(0, 0, -0.122 * 25.4), App.Rotation())
sketch16.addGeometry([
    Part.Circle(Vector(7.5, -43.3, 0), Vector(0, 0, 1), 1.6),
    Part.Circle(Vector(176, -43.3, 0), Vector(0, 0, 1), 1.6),
], False)
sketch16.addConstraint([
    Sketcher.Constraint("Equal", 0, 1),
    Sketcher.Constraint("Horizontal", 0, 3, 1, 3),
    Sketcher.Constraint("Diameter", 0, Q("0.126 in")),
    Sketcher.Constraint("DistanceX", 0, 3, 1, 3, Q("6.636 in")),
    Sketcher.Constraint("DistanceY", 0, 3, -1, 1, Q("43.312029 mm")),
    Sketcher.Constraint("DistanceX", -1, 1, 0, 3, Q("7.482815 mm")),
])
sketch16.setExpression("Constraints[2]", "Params.sketch16_diameter")
pocket15 = doc.addObject("PartDesign::Pocket", "Pocket014")
body.addObject(pocket15)
pocket15.Profile = sketch16
pocket15.setExpression("Length", "Params.pocket15_length")
pocket15.Reversed = True

doc.recompute()
